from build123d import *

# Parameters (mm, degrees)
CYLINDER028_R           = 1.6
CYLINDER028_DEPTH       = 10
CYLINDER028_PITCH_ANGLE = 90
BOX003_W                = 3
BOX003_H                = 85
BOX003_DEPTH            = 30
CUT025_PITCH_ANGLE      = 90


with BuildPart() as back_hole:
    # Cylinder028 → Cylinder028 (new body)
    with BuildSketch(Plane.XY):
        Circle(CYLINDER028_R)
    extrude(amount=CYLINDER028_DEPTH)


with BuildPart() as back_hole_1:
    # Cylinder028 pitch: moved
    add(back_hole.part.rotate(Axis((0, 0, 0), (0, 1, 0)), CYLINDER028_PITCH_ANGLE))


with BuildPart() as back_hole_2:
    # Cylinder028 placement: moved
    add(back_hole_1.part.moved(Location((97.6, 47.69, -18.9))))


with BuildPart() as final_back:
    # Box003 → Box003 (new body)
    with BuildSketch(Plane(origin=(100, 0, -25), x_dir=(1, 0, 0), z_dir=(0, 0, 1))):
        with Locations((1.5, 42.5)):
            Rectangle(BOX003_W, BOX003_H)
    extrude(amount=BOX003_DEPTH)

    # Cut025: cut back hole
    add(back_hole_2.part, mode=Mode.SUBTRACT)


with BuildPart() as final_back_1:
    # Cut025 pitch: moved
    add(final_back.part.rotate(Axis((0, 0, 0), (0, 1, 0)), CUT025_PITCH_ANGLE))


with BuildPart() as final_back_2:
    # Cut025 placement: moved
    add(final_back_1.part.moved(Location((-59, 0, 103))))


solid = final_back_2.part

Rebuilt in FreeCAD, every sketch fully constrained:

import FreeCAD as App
import Part
import Sketcher

V = App.Vector

doc = App.newDocument("Part")
body = doc.addObject("PartDesign::Body", "Body")

# Sketch on XY plane
sketch1 = body.newObject("Sketcher::SketchObject", "Sketch")
sketch1.AttachmentSupport = (doc.getObject("XY_Plane"), [""])
sketch1.MapMode = "FlatFace"
sketch1.addGeometry(Part.Circle(V(0, 0, 0), V(0, 0, 1), 1.6), False)
sketch1.addConstraint(Sketcher.Constraint("Coincident", 0, 3, -1, 1))
sketch1.addConstraint(Sketcher.Constraint("Diameter", 0, 3.2))
pad1 = body.newObject("PartDesign::Pad", "Pad")
pad1.Profile = sketch1
pad1.Length = 10
body2 = doc.addObject("PartDesign::Body", "Body001")
doc.recompute()

body.Placement = App.Placement(V(0, 0, 0), App.Rotation(V(0, 1, 0), 90))
boolean = body2.newObject("PartDesign::Boolean", "Boolean")
boolean.Type = "Fuse"
boolean.addObjects([body])
body3 = doc.addObject("PartDesign::Body", "Body002")
doc.recompute()

body2.Placement = App.Placement(V(97.6, 47.69, -18.9), App.Rotation(V(0, 0, 1), 0))
boolean2 = body3.newObject("PartDesign::Boolean", "Boolean001")
boolean2.Type = "Fuse"
boolean2.addObjects([body2])
body4 = doc.addObject("PartDesign::Body", "Body003")

# Sketch on XY plane
sketch2 = body4.newObject("Sketcher::SketchObject", "Sketch001")
sketch2.AttachmentSupport = (doc.getObject("XY_Plane003"), [""])
sketch2.MapMode = "FlatFace"
sketch2.AttachmentOffset = App.Placement(V(0, 0, -25), App.Rotation())
sketch2.addGeometry(Part.LineSegment(V(100, 85, 0), V(100, 0, 0)), False)
sketch2.addGeometry(Part.LineSegment(V(100, 0, 0), V(103, 0, 0)), False)
sketch2.addGeometry(Part.LineSegment(V(103, 0, 0), V(103, 85, 0)), False)
sketch2.addGeometry(Part.LineSegment(V(103, 85, 0), V(100, 85, 0)), False)
sketch2.addConstraint(Sketcher.Constraint("Coincident", 0, 2, 1, 1))
sketch2.addConstraint(Sketcher.Constraint("Coincident", 1, 2, 2, 1))
sketch2.addConstraint(Sketcher.Constraint("Coincident", 2, 2, 3, 1))
sketch2.addConstraint(Sketcher.Constraint("Coincident", 3, 2, 0, 1))
sketch2.addConstraint(Sketcher.Constraint("Vertical", 0))
sketch2.addConstraint(Sketcher.Constraint("Horizontal", 1))
sketch2.addConstraint(Sketcher.Constraint("Vertical", 2))
sketch2.addConstraint(Sketcher.Constraint("Horizontal", 3))
sketch2.addConstraint(Sketcher.Constraint("PointOnObject", 0, 2, -1))
sketch2.addConstraint(Sketcher.Constraint("DistanceX", 1, 1, 1, 2, 3.0))
sketch2.addConstraint(Sketcher.Constraint("DistanceY", 0, 2, 0, 1, 85.0))
sketch2.addConstraint(Sketcher.Constraint("DistanceX", -1, 1, 0, 2, 100.0))
pad2 = body4.newObject("PartDesign::Pad", "Pad001")
pad2.Profile = sketch2
pad2.Length = 30
doc.recompute()

boolean3 = body4.newObject("PartDesign::Boolean", "Boolean002")
boolean3.Type = "Cut"
boolean3.addObjects([body3])
body5 = doc.addObject("PartDesign::Body", "Body004")
doc.recompute()

body4.Placement = App.Placement(V(0, 0, 0), App.Rotation(V(0, 1, 0), 90))
boolean4 = body5.newObject("PartDesign::Boolean", "Boolean003")
boolean4.Type = "Fuse"
boolean4.addObjects([body4])
body6 = doc.addObject("PartDesign::Body", "Body005")
doc.recompute()

body5.Placement = App.Placement(V(-59, 0, 103), App.Rotation(V(0, 0, 1), 0))
boolean5 = body6.newObject("PartDesign::Boolean", "Boolean004")
boolean5.Type = "Fuse"
boolean5.addObjects([body5])

doc.recompute()
